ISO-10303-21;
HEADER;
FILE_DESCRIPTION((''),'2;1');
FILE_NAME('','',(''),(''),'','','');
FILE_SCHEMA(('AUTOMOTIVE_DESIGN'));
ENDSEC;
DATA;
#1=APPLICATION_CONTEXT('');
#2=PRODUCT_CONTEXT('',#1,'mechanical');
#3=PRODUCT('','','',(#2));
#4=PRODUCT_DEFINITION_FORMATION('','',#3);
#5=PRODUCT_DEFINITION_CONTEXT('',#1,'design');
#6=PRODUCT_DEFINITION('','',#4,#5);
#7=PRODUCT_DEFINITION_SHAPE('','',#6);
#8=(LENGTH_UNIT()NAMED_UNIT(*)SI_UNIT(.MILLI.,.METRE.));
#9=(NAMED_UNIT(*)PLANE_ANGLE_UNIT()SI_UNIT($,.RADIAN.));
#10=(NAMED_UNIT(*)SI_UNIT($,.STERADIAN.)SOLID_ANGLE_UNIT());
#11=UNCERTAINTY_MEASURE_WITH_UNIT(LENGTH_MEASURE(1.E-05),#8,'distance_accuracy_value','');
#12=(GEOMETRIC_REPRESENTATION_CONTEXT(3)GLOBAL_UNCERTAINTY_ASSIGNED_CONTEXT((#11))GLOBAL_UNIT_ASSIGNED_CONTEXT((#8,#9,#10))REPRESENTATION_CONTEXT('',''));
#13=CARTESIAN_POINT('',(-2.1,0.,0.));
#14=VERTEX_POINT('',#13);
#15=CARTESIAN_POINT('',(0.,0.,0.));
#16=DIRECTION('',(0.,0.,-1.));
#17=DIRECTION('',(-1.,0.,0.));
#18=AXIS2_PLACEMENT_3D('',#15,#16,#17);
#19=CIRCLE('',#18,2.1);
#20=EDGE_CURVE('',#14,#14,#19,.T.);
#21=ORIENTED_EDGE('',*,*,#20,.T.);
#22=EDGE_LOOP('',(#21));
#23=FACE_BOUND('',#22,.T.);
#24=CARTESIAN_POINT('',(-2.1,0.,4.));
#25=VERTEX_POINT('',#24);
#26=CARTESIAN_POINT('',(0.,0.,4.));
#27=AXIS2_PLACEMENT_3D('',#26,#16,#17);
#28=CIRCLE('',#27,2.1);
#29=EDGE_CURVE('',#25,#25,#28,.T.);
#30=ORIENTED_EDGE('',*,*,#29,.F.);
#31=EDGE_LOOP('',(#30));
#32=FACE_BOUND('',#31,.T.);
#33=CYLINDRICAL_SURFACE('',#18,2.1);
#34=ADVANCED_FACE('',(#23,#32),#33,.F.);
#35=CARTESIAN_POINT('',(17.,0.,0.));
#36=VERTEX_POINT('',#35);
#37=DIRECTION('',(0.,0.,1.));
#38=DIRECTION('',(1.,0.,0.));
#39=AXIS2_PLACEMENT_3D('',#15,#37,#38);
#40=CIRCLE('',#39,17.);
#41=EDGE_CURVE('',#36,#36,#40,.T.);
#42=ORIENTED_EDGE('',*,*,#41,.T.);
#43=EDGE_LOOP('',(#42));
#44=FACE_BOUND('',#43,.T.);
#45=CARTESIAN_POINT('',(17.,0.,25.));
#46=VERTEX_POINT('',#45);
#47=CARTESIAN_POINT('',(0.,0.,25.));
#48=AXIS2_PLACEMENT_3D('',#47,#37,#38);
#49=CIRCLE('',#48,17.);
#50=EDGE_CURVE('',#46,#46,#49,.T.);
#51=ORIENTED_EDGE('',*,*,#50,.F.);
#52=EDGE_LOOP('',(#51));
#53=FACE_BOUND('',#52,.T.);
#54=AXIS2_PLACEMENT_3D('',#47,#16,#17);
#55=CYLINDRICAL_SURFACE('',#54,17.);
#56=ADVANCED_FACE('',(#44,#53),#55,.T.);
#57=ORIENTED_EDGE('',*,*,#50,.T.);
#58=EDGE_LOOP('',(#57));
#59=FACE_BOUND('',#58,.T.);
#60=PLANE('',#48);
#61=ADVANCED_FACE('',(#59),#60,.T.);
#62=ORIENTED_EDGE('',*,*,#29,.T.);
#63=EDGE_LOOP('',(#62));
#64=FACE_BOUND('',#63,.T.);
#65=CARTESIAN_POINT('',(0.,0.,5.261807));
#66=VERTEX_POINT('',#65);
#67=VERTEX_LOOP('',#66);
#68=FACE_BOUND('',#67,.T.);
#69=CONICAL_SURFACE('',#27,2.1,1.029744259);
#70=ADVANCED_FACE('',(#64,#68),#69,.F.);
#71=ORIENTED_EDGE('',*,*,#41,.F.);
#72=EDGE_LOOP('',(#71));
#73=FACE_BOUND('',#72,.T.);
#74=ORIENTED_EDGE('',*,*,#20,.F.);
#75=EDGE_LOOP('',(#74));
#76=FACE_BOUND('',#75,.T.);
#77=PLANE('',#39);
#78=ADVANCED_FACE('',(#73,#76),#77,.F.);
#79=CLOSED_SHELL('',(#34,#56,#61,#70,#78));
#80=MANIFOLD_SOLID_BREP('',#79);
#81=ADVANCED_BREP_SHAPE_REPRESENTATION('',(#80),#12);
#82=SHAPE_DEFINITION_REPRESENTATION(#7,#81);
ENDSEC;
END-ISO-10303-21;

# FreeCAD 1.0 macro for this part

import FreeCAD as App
import Part
import Sketcher
from FreeCAD import Vector

doc = App.newDocument("Part")
body = doc.addObject("PartDesign::Body", "Body")

# Sketch on XY plane
sketch1 = doc.addObject("Sketcher::SketchObject", "Sketch")
body.addObject(sketch1)
sketch1.AttachmentSupport = (doc.XY_Plane, [""])
sketch1.MapMode = "FlatFace"
sketch1.addGeometry(Part.Circle(Vector(0, 0, 0), Vector(0, 0, 1), 17), False)
sketch1.addConstraint(Sketcher.Constraint("Coincident", 0, 3, -1, 1))
sketch1.addConstraint(Sketcher.Constraint("Diameter", 0, 34.0))
pad1 = doc.addObject("PartDesign::Pad", "Pad")
body.addObject(pad1)
pad1.Profile = sketch1
pad1.Length = 25

# Sketch on XY plane
sketch2 = doc.addObject("Sketcher::SketchObject", "Sketch001")
body.addObject(sketch2)
sketch2.AttachmentSupport = (doc.XY_Plane, [""])
sketch2.MapMode = "FlatFace"
sketch2.addGeometry(Part.Circle(Vector(0, 0, 0), Vector(0, 0, 1), 2.1), False)
sketch2.addConstraint(Sketcher.Constraint("Coincident", 0, 3, -1, 1))
sketch2.addConstraint(Sketcher.Constraint("Diameter", 0, 4.2))
doc.recompute()
hole = doc.addObject("PartDesign::Hole", "Hole")
body.addObject(hole)
hole.Profile = sketch2
hole.ThreadType = "None"
hole.Diameter = 4.2
hole.DepthType = "Dimension"
hole.Depth = 4
hole.DrillPoint = "Angled"
hole.DrillPointAngle = 118
hole.Reversed = True

doc.recompute()
